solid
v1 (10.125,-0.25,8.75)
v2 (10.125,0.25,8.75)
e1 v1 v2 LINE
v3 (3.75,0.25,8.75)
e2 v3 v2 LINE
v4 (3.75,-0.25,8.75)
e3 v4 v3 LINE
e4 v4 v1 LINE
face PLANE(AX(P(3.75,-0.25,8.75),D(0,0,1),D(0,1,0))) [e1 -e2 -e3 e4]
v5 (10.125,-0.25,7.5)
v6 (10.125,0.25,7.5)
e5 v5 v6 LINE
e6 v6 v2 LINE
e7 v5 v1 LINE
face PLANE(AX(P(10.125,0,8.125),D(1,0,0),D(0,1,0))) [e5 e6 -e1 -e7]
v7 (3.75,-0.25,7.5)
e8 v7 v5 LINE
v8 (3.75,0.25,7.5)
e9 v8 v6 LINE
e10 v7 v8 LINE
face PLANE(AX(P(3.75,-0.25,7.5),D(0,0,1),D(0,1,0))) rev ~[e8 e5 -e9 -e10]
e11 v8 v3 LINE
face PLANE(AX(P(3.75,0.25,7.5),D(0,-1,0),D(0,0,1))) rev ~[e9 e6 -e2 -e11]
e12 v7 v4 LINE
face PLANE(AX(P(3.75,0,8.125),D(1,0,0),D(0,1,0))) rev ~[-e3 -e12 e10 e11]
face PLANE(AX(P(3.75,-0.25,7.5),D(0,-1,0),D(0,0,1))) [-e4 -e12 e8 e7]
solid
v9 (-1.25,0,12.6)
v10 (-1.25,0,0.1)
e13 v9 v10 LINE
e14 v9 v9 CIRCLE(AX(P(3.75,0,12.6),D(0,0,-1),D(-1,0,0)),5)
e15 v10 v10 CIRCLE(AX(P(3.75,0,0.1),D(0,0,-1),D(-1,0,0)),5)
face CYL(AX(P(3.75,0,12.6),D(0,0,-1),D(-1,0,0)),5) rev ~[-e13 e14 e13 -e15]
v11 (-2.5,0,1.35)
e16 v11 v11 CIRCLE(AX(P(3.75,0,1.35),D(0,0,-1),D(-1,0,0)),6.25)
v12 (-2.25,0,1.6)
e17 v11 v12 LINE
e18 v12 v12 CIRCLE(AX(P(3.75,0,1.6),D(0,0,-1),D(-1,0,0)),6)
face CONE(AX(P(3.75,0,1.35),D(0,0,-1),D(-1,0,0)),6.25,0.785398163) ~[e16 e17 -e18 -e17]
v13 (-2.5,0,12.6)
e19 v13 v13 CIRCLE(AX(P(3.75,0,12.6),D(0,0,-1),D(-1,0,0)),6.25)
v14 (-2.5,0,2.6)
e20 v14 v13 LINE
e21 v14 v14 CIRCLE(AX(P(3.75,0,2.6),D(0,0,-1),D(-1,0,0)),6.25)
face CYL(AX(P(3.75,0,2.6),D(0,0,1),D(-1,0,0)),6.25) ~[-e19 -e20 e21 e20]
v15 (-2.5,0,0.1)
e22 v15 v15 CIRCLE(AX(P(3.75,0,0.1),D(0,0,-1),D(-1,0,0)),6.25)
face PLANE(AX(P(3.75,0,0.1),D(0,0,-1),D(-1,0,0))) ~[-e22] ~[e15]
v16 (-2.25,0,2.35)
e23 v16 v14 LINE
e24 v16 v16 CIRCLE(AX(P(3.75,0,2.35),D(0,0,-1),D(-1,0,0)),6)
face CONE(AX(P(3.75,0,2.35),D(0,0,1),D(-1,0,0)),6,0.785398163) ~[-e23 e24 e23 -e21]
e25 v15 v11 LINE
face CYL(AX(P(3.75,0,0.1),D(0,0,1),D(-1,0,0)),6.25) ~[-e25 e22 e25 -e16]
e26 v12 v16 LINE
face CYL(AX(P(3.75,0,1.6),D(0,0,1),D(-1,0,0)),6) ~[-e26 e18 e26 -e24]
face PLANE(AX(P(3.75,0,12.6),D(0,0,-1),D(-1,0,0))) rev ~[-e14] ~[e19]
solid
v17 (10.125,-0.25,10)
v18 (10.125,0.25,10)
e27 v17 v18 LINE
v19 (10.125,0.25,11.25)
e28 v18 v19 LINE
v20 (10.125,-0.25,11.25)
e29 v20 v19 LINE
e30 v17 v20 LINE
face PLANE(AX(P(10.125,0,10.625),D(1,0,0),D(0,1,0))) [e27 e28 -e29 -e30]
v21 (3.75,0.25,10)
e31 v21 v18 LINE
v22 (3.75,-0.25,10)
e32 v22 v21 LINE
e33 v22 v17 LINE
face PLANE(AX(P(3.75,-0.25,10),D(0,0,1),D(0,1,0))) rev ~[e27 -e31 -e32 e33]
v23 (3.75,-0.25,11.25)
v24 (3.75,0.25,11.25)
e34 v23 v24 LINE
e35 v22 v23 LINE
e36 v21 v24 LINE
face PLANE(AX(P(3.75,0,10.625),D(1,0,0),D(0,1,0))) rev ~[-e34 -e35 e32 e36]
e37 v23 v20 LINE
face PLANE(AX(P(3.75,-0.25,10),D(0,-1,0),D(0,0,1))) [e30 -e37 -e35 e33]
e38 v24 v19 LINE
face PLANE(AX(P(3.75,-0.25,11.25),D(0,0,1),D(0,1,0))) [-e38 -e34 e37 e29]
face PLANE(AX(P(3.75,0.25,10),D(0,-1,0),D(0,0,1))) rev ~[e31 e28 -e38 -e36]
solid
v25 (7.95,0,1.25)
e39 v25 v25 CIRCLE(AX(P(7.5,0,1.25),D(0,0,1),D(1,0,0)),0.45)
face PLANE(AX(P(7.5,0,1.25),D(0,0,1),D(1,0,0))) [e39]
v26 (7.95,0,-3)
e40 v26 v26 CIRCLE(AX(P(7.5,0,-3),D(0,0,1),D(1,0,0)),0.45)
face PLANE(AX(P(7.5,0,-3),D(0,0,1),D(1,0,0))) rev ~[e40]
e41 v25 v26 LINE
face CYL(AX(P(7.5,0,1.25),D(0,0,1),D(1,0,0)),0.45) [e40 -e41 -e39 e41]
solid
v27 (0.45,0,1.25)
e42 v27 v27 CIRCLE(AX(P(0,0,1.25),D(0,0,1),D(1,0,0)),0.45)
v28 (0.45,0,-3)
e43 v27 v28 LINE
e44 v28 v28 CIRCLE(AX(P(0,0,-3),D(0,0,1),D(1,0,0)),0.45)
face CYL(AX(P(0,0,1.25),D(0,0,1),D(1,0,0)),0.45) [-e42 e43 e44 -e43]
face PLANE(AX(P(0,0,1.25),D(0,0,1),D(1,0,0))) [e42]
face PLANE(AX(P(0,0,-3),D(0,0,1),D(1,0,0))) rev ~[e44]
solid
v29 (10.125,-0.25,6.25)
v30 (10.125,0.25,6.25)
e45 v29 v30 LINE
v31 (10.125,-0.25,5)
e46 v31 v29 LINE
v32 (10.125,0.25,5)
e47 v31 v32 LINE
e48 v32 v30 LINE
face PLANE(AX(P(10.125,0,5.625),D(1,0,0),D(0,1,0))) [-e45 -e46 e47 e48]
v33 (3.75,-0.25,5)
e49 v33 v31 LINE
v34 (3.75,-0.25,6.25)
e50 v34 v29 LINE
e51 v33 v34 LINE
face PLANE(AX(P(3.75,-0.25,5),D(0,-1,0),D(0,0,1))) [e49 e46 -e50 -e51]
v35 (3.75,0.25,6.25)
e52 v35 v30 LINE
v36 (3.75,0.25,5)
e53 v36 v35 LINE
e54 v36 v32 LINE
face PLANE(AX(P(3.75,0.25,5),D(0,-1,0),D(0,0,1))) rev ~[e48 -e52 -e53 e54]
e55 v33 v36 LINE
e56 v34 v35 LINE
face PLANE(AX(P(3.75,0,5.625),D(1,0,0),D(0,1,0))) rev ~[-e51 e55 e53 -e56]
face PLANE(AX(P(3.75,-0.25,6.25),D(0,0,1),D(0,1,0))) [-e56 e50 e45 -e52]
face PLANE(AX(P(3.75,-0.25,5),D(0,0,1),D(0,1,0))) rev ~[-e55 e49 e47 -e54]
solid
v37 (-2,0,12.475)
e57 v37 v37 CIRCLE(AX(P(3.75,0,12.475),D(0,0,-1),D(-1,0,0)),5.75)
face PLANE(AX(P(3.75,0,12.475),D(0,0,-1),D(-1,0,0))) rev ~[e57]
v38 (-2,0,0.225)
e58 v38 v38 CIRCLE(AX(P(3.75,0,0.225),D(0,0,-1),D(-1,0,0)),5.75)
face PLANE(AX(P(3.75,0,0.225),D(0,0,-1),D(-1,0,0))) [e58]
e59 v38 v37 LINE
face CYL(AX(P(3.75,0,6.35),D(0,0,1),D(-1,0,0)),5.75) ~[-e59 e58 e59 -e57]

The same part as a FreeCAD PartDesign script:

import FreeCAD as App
import Part
import Sketcher
from FreeCAD import Vector

doc = App.newDocument("Part")
body = doc.addObject("PartDesign::Body", "Body")

# Sketch on XZ plane
sketch1 = body.newObject("Sketcher::SketchObject", "Sketch")
sketch1.AttachmentSupport = (doc.getObject("XZ_Plane"), [""])
sketch1.MapMode = "FlatFace"
sketch1.addGeometry(Part.LineSegment(Vector(-2.5, 1.35, 0), Vector(-2.5, 0.1, 0)), False)
sketch1.addGeometry(Part.LineSegment(Vector(-2.5, 0.1, 0), Vector(-1.25, 0.1, 0)), False)
sketch1.addGeometry(Part.LineSegment(Vector(-1.25, 0.1, 0), Vector(-1.25, 12.6, 0)), False)
sketch1.addGeometry(Part.LineSegment(Vector(-1.25, 12.6, 0), Vector(-2.5, 12.6, 0)), False)
sketch1.addGeometry(Part.LineSegment(Vector(-2.5, 12.6, 0), Vector(-2.5, 2.6, 0)), False)
sketch1.addGeometry(Part.LineSegment(Vector(-2.5, 2.6, 0), Vector(-2.25, 2.35, 0)), False)
sketch1.addGeometry(Part.LineSegment(Vector(-2.25, 2.35, 0), Vector(-2.25, 1.6, 0)), False)
sketch1.addGeometry(Part.LineSegment(Vector(-2.25, 1.6, 0), Vector(-2.5, 1.35, 0)), False)
sketch1.addGeometry(Part.LineSegment(Vector(3.75, 12.6, 0), Vector(3.75, 0.1, 0)), True)  # axis
sketch1.addConstraint(Sketcher.Constraint("Coincident", 0, 2, 1, 1))
sketch1.addConstraint(Sketcher.Constraint("Coincident", 1, 2, 2, 1))
sketch1.addConstraint(Sketcher.Constraint("Coincident", 2, 2, 3, 1))
sketch1.addConstraint(Sketcher.Constraint("Coincident", 3, 2, 4, 1))
sketch1.addConstraint(Sketcher.Constraint("Coincident", 4, 2, 5, 1))
sketch1.addConstraint(Sketcher.Constraint("Coincident", 5, 2, 6, 1))
sketch1.addConstraint(Sketcher.Constraint("Coincident", 6, 2, 7, 1))
sketch1.addConstraint(Sketcher.Constraint("Coincident", 7, 2, 0, 1))
sketch1.addConstraint(Sketcher.Constraint("Vertical", 0))
sketch1.addConstraint(Sketcher.Constraint("Horizontal", 1))
sketch1.addConstraint(Sketcher.Constraint("Vertical", 2))
sketch1.addConstraint(Sketcher.Constraint("Horizontal", 3))
sketch1.addConstraint(Sketcher.Constraint("Vertical", 4))
sketch1.addConstraint(Sketcher.Constraint("Vertical", 6))
sketch1.addConstraint(Sketcher.Constraint("Vertical", 8))
sketch1.addConstraint(Sketcher.Constraint("Perpendicular", 5, 7))
sketch1.addConstraint(Sketcher.Constraint("Horizontal", 3, 2, 8, 1))
sketch1.addConstraint(Sketcher.Constraint("Horizontal", 1, 2, 8, 2))
sketch1.addConstraint(Sketcher.Constraint("Vertical", 0, 2, 3, 2))
sketch1.addConstraint(Sketcher.Constraint("Equal", 3, 0))
sketch1.addConstraint(Sketcher.Constraint("Equal", 5, 7))
sketch1.addConstraint(Sketcher.Constraint("DistanceY", 4, 2, 4, 1, 10.0))
sketch1.addConstraint(Sketcher.Constraint("DistanceY", 2, 1, 2, 2, 12.5))
sketch1.addConstraint(Sketcher.Constraint("DistanceX", 5, 2, 1, 2, 1.0))
sketch1.addConstraint(Sketcher.Constraint("DistanceY", 6, 2, 4, 2, 1.0))
sketch1.addConstraint(Sketcher.Constraint("DistanceX", 2, 2, 8, 1, 5.0))
sketch1.addConstraint(Sketcher.Constraint("DistanceX", 0, 2, -1, 1, 2.5))
sketch1.addConstraint(Sketcher.Constraint("DistanceY", -1, 1, 0, 2, 0.1))
revolution = body.newObject("PartDesign::Revolution", "Revolution")
revolution.Profile = sketch1
revolution.ReferenceAxis = (sketch1, ["Axis0"])
revolution.Angle = 360
body2 = doc.addObject("PartDesign::Body", "Body001")

# Sketch on XZ plane
sketch2 = body2.newObject("Sketcher::SketchObject", "Sketch001")
sketch2.AttachmentSupport = (doc.getObject("XZ_Plane001"), [""])
sketch2.MapMode = "FlatFace"
sketch2.addGeometry(Part.LineSegment(Vector(-2, 12, 0), Vector(-2, 0, 0)), False)
sketch2.addGeometry(Part.LineSegment(Vector(-2, 0, 0), Vector(4, 0, 0)), False)
sketch2.addGeometry(Part.LineSegment(Vector(4, 0, 0), Vector(4, 12, 0)), False)
sketch2.addGeometry(Part.LineSegment(Vector(4, 12, 0), Vector(-2, 12, 0)), False)
sketch2.addGeometry(Part.LineSegment(Vector(4, 12, 0), Vector(4, 0, 0)), True)  # axis
sketch2.addConstraint(Sketcher.Constraint("Coincident", 0, 2, 1, 1))
sketch2.addConstraint(Sketcher.Constraint("Coincident", 1, 2, 2, 1))
sketch2.addConstraint(Sketcher.Constraint("Coincident", 2, 2, 3, 1))
sketch2.addConstraint(Sketcher.Constraint("Coincident", 3, 2, 0, 1))
sketch2.addConstraint(Sketcher.Constraint("Vertical", 0))
sketch2.addConstraint(Sketcher.Constraint("Horizontal", 1))
sketch2.addConstraint(Sketcher.Constraint("Vertical", 2))
sketch2.addConstraint(Sketcher.Constraint("Horizontal", 3))
sketch2.addConstraint(Sketcher.Constraint("Vertical", 4))
sketch2.addConstraint(Sketcher.Constraint("Coincident", 4, 1, 2, 2))
sketch2.addConstraint(Sketcher.Constraint("Horizontal", 0, 2, 4, 2))
sketch2.addConstraint(Sketcher.Constraint("DistanceX", 0, 2, -1, 1, 2.0))
sketch2.addConstraint(Sketcher.Constraint("DistanceX", 1, 1, 1, 2, 5.75))
sketch2.addConstraint(Sketcher.Constraint("DistanceY", 0, 2, 0, 1, 12.25))
sketch2.addConstraint(Sketcher.Constraint("DistanceY", -1, 1, 0, 2, 0.225))
revolution2 = body2.newObject("PartDesign::Revolution", "Revolution001")
revolution2.Profile = sketch2
revolution2.ReferenceAxis = (sketch2, ["Axis0"])
revolution2.Angle = 360
body3 = doc.addObject("PartDesign::Body", "Body002")
body3.AllowCompound = True

# Sketch on XY plane
sketch3 = body3.newObject("Sketcher::SketchObject", "Sketch002")
sketch3.AttachmentSupport = (doc.getObject("XY_Plane002"), [""])
sketch3.MapMode = "FlatFace"
sketch3.AttachmentOffset = App.Placement(Vector(0, 0, 1.25), App.Rotation())
sketch3.addGeometry(Part.Circle(Vector(0, 0, 0), Vector(0, 0, 1), 0.45), False)
sketch3.addGeometry(Part.Circle(Vector(7.5, 0, 0), Vector(0, 0, 1), 0.45), False)
sketch3.addConstraint(Sketcher.Constraint("Coincident", 0, 3, -1, 1))
sketch3.addConstraint(Sketcher.Constraint("Equal", 0, 1))
sketch3.addConstraint(Sketcher.Constraint("PointOnObject", 1, 3, -1))
sketch3.addConstraint(Sketcher.Constraint("Diameter", 0, 0.9))
sketch3.addConstraint(Sketcher.Constraint("DistanceX", -1, 1, 1, 3, 7.5))
pad1 = body3.newObject("PartDesign::Pad", "Pad")
pad1.Profile = sketch3
pad1.Length = 4.25
pad1.Reversed = True
body4 = doc.addObject("PartDesign::Body", "Body003")
body4.AllowCompound = True

# Sketch on YZ plane
sketch4 = body4.newObject("Sketcher::SketchObject", "Sketch003")
sketch4.AttachmentSupport = (doc.getObject("YZ_Plane003"), [""])
sketch4.MapMode = "FlatFace"
sketch4.AttachmentOffset = App.Placement(Vector(0, 0, 3.75), App.Rotation())
sketch4.addGeometry(Part.LineSegment(Vector(-0.2, 6.2, 0), Vector(-0.2, 5, 0)), False)
sketch4.addGeometry(Part.LineSegment(Vector(-0.2, 5, 0), Vector(0.2, 5, 0)), False)
sketch4.addGeometry(Part.LineSegment(Vector(0.2, 5, 0), Vector(0.2, 6.2, 0)), False)
sketch4.addGeometry(Part.LineSegment(Vector(0.2, 6.2, 0), Vector(-0.2, 6.2, 0)), False)
sketch4.addGeometry(Part.LineSegment(Vector(-0.2, 8.8, 0), Vector(-0.2, 7.5, 0)), False)
sketch4.addGeometry(Part.LineSegment(Vector(-0.2, 7.5, 0), Vector(0.2, 7.5, 0)), False)
sketch4.addGeometry(Part.LineSegment(Vector(0.2, 7.5, 0), Vector(0.2, 8.8, 0)), False)
sketch4.addGeometry(Part.LineSegment(Vector(0.2, 8.8, 0), Vector(-0.2, 8.8, 0)), False)
sketch4.addGeometry(Part.LineSegment(Vector(-0.2, 11.2, 0), Vector(-0.2, 10, 0)), False)
sketch4.addGeometry(Part.LineSegment(Vector(-0.2, 10, 0), Vector(0.2, 10, 0)), False)
sketch4.addGeometry(Part.LineSegment(Vector(0.2, 10, 0), Vector(0.2, 11.2, 0)), False)
sketch4.addGeometry(Part.LineSegment(Vector(0.2, 11.2, 0), Vector(-0.2, 11.2, 0)), False)
sketch4.addConstraint(Sketcher.Constraint("Coincident", 0, 2, 1, 1))
sketch4.addConstraint(Sketcher.Constraint("Coincident", 1, 2, 2, 1))
sketch4.addConstraint(Sketcher.Constraint("Coincident", 2, 2, 3, 1))
sketch4.addConstraint(Sketcher.Constraint("Coincident", 3, 2, 0, 1))
sketch4.addConstraint(Sketcher.Constraint("Coincident", 4, 2, 5, 1))
sketch4.addConstraint(Sketcher.Constraint("Coincident", 5, 2, 6, 1))
sketch4.addConstraint(Sketcher.Constraint("Coincident", 6, 2, 7, 1))
sketch4.addConstraint(Sketcher.Constraint("Coincident", 7, 2, 4, 1))
sketch4.addConstraint(Sketcher.Constraint("Coincident", 8, 2, 9, 1))
sketch4.addConstraint(Sketcher.Constraint("Coincident", 9, 2, 10, 1))
sketch4.addConstraint(Sketcher.Constraint("Coincident", 10, 2, 11, 1))
sketch4.addConstraint(Sketcher.Constraint("Coincident", 11, 2, 8, 1))
sketch4.addConstraint(Sketcher.Constraint("Vertical", 0))
sketch4.addConstraint(Sketcher.Constraint("Horizontal", 1))
sketch4.addConstraint(Sketcher.Constraint("Vertical", 2))
sketch4.addConstraint(Sketcher.Constraint("Horizontal", 3))
sketch4.addConstraint(Sketcher.Constraint("Vertical", 4))
sketch4.addConstraint(Sketcher.Constraint("Horizontal", 5))
sketch4.addConstraint(Sketcher.Constraint("Vertical", 6))
sketch4.addConstraint(Sketcher.Constraint("Horizontal", 7))
sketch4.addConstraint(Sketcher.Constraint("Vertical", 8))
sketch4.addConstraint(Sketcher.Constraint("Horizontal", 9))
sketch4.addConstraint(Sketcher.Constraint("Vertical", 10))
sketch4.addConstraint(Sketcher.Constraint("Horizontal", 11))
sketch4.addConstraint(Sketcher.Constraint("Vertical", 3, 2, 4, 2))
sketch4.addConstraint(Sketcher.Constraint("Vertical", 2, 2, 5, 2))
sketch4.addConstraint(Sketcher.Constraint("Vertical", 7, 2, 8, 2))
sketch4.addConstraint(Sketcher.Constraint("Vertical", 6, 2, 9, 2))
sketch4.addConstraint(Sketcher.Constraint("Equal", 2, 4))
sketch4.addConstraint(Sketcher.Constraint("Equal", 6, 8))
sketch4.addConstraint(Sketcher.Constraint("DistanceX", 1, 1, 1, 2, 0.5))
sketch4.addConstraint(Sketcher.Constraint("DistanceY", -1, 1, 0, 2, 5.0))
sketch4.addConstraint(Sketcher.Constraint("DistanceY", -1, 1, 8, 2, 10.0))
sketch4.addConstraint(Sketcher.Constraint("DistanceY", 0, 2, 0, 1, 1.25))
sketch4.addConstraint(Sketcher.Constraint("DistanceY", -1, 1, 4, 2, 7.5))
sketch4.addConstraint(Sketcher.Constraint("DistanceX", 0, 2, -1, 1, 0.25))
pad2 = body4.newObject("PartDesign::Pad", "Pad001")
pad2.Profile = sketch4
pad2.Length = 6.375

doc.recompute()
